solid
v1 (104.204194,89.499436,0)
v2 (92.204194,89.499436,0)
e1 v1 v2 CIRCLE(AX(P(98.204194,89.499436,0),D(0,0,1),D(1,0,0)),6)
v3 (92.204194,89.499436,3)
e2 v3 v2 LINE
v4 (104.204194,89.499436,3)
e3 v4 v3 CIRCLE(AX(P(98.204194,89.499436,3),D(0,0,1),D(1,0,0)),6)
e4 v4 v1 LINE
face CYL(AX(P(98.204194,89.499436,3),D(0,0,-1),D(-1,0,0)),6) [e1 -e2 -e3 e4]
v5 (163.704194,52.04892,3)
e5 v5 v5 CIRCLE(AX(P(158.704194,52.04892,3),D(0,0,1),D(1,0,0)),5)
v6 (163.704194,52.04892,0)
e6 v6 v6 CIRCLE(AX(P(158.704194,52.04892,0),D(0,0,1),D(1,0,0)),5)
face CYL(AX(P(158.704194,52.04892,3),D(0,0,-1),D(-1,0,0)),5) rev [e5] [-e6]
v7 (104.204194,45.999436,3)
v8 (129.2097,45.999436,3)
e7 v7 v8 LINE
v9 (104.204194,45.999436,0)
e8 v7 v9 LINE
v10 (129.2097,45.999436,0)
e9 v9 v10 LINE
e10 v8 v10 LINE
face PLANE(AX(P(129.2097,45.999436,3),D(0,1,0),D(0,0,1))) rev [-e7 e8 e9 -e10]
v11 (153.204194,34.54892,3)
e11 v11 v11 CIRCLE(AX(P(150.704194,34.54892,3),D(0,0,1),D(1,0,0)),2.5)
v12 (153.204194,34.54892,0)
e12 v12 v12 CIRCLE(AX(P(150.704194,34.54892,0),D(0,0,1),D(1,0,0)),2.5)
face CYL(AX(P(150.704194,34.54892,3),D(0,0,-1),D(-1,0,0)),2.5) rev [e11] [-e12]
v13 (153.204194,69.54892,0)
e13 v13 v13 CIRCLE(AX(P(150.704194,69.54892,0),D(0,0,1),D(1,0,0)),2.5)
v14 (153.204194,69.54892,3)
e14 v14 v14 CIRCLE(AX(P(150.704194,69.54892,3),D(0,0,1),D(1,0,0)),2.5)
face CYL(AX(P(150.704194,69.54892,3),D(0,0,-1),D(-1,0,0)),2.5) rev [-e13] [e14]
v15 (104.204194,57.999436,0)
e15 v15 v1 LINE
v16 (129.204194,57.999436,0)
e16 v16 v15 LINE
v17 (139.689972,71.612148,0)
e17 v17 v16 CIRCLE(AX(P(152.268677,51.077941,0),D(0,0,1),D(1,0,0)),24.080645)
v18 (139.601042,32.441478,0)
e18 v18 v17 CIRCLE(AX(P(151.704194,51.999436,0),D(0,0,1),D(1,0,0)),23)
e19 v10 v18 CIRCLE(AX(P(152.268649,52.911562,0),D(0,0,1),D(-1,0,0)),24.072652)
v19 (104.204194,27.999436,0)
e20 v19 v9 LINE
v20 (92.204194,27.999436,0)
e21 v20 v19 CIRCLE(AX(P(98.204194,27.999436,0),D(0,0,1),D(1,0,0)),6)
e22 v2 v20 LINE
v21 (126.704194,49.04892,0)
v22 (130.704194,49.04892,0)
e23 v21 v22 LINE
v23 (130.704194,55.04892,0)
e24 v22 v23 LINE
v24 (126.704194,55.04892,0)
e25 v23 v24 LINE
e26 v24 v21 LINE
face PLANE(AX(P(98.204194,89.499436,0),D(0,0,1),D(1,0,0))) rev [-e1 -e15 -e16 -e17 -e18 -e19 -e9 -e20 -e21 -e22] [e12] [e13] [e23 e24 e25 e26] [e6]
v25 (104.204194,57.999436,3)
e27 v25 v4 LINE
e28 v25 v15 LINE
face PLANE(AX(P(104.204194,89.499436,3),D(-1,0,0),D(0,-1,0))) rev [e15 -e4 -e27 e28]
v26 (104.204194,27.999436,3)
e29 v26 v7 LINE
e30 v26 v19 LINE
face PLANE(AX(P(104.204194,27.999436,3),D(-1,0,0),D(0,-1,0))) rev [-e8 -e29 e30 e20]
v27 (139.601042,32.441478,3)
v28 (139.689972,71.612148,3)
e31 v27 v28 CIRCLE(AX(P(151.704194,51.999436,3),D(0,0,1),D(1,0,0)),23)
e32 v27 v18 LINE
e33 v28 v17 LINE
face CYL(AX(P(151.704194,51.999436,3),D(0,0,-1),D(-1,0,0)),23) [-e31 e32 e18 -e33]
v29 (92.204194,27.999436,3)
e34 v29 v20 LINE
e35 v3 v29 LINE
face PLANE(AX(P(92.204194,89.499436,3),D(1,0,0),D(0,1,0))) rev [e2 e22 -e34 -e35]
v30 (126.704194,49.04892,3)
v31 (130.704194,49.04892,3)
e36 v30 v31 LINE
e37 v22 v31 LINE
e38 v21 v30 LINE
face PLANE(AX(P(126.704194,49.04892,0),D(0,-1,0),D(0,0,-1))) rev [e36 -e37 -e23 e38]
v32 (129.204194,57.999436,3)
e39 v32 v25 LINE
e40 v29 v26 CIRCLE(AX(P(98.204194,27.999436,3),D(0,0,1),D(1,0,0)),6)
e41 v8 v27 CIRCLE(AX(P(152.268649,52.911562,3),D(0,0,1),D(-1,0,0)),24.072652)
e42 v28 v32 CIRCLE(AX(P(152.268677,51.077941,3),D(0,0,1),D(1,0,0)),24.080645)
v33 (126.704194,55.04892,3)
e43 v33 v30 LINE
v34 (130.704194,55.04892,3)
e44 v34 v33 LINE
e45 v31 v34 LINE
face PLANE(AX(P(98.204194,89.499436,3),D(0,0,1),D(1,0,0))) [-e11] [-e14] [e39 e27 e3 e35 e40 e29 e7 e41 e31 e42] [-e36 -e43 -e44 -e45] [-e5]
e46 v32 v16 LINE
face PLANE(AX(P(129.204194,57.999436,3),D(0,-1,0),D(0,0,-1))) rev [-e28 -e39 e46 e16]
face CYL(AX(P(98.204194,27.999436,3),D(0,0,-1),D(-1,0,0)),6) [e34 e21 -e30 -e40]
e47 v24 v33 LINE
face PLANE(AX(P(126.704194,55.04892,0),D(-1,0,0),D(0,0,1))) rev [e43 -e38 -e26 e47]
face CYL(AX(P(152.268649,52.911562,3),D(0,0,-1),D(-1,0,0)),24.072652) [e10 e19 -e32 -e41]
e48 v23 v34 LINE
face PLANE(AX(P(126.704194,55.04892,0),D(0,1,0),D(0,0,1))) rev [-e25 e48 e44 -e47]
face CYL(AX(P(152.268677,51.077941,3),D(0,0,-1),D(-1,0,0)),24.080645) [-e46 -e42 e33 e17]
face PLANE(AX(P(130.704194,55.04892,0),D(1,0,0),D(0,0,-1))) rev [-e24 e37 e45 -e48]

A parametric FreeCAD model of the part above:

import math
import FreeCAD as App
import Part
import Sketcher

V = App.Vector


def add_polygon(sketch, points):
    """Adds a closed chain of lines whose ends are joined by coincident constraints."""
    first, n = sketch.GeometryCount, len(points)
    for a, b in zip(points, points[1:] + points[:1]):
        sketch.addGeometry(Part.LineSegment(App.Vector(*a, 0), App.Vector(*b, 0)), False)
    for i in range(n):
        sketch.addConstraint(Sketcher.Constraint("Coincident", first + i, 2, first + (i + 1) % n, 1))

doc = App.newDocument("Part")
body = doc.addObject("PartDesign::Body", "Body")

sketch1 = body.newObject("Sketcher::SketchObject", "Sketch")
sketch1.AttachmentSupport = (doc.getObject("XY_Plane"), [""])
sketch1.MapMode = "FlatFace"
sketch1.addGeometry(Part.LineSegment(V(104.2, 58, 0), V(104.2, 89.5, 0)), False)
sketch1.addGeometry(Part.ArcOfCircle(Part.Circle(V(98.2, 89.5, 0), V(0, 0, 1), 6), math.radians(0), math.radians(180)), False)
sketch1.addGeometry(Part.LineSegment(V(92.2, 89.5, 0), V(92.2, 28, 0)), False)
sketch1.addGeometry(Part.ArcOfCircle(Part.Circle(V(98.2, 28, 0), V(0, 0, 1), 6), math.radians(180), math.radians(360)), False)
sketch1.addGeometry(Part.LineSegment(V(104.2, 28, 0), V(104.2, 46, 0)), False)
sketch1.addGeometry(Part.LineSegment(V(104.2, 46, 0), V(129.2, 46, 0)), False)
sketch1.addGeometry(Part.ArcOfCircle(Part.Circle(V(152.3, 52.9, 0), V(0, 0, 1), 24.1), math.radians(-163), math.radians(-122)), False)
sketch1.addGeometry(Part.ArcOfCircle(Part.Circle(V(151.7, 52, 0), V(0, 0, 1), 23), math.radians(-122), math.radians(121)), False)
sketch1.addGeometry(Part.ArcOfCircle(Part.Circle(V(152.3, 51.1, 0), V(0, 0, 1), 24.1), math.radians(121), math.radians(163)), False)
sketch1.addGeometry(Part.LineSegment(V(129.2, 58, 0), V(104.2, 58, 0)), False)
sketch1.addGeometry(Part.Circle(V(150.7, 34.5, 0), V(0, 0, 1), 2.5), False)
sketch1.addGeometry(Part.Circle(V(158.7, 52, 0), V(0, 0, 1), 5), False)
sketch1.addGeometry(Part.Circle(V(150.7, 69.5, 0), V(0, 0, 1), 2.5), False)
sketch1.addConstraint(Sketcher.Constraint("Tangent", 0, 2, 1, 1))
sketch1.addConstraint(Sketcher.Constraint("Tangent", 1, 2, 2, 1))
sketch1.addConstraint(Sketcher.Constraint("Tangent", 2, 2, 3, 1))
sketch1.addConstraint(Sketcher.Constraint("Tangent", 3, 2, 4, 1))
sketch1.addConstraint(Sketcher.Constraint("Coincident", 4, 2, 5, 1))
sketch1.addConstraint(Sketcher.Constraint("Coincident", 5, 2, 6, 1))
sketch1.addConstraint(Sketcher.Constraint("Tangent", 6, 2, 7, 1))
sketch1.addConstraint(Sketcher.Constraint("Tangent", 7, 2, 8, 1))
sketch1.addConstraint(Sketcher.Constraint("Coincident", 8, 2, 9, 1))
sketch1.addConstraint(Sketcher.Constraint("Coincident", 9, 2, 0, 1))
sketch1.addConstraint(Sketcher.Constraint("Vertical", 0))
sketch1.addConstraint(Sketcher.Constraint("Vertical", 2))
sketch1.addConstraint(Sketcher.Constraint("Vertical", 4))
sketch1.addConstraint(Sketcher.Constraint("Horizontal", 5))
sketch1.addConstraint(Sketcher.Constraint("Horizontal", 9))
sketch1.addConstraint(Sketcher.Constraint("Equal", 1, 3))
sketch1.addConstraint(Sketcher.Constraint("Equal", 10, 12))
sketch1.addConstraint(Sketcher.Constraint("Vertical", 10, 3, 12, 3))
sketch1.addConstraint(Sketcher.Constraint("Diameter", 10, 5.0))
sketch1.addConstraint(Sketcher.Constraint("Diameter", 11, 10.0))
sketch1.addConstraint(Sketcher.Constraint("Radius", 1, 6.0))
sketch1.addConstraint(Sketcher.Constraint("Radius", 7, 23.0))
sketch1.addConstraint(Sketcher.Constraint("DistanceX", 9, 2, 9, 1, 25.0))
sketch1.addConstraint(Sketcher.Constraint("DistanceY", 4, 1, 4, 2, 18.0))
sketch1.addConstraint(Sketcher.Constraint("DistanceY", 0, 1, 0, 2, 31.5))
sketch1.addConstraint(Sketcher.Constraint("DistanceY", 2, 2, 2, 1, 61.5))
sketch1.addConstraint(Sketcher.Constraint("DistanceY", 3, 3, 7, 3, 24.0))
sketch1.addConstraint(Sketcher.Constraint("DistanceX", 10, 3, 7, 3, 1.0))
sketch1.addConstraint(Sketcher.Constraint("DistanceX", 7, 3, 11, 3, 7.0))
sketch1.addConstraint(Sketcher.Constraint("DistanceY", 10, 3, 12, 3, 35.0))
sketch1.addConstraint(Sketcher.Constraint("DistanceX", 3, 3, 7, 3, 53.5))
sketch1.addConstraint(Sketcher.Constraint("DistanceY", 10, 3, 11, 3, 17.5))
sketch1.addConstraint(Sketcher.Constraint("Radius", 6, 24.072652))
sketch1.addConstraint(Sketcher.Constraint("Radius", 8, 24.080645))
sketch1.addConstraint(Sketcher.Constraint("DistanceX", -1, 1, 5, 2, 129.2097))
sketch1.addConstraint(Sketcher.Constraint("DistanceX", 5, 1, 5, 2, 25.005507))
sketch1.addConstraint(Sketcher.Constraint("DistanceY", -1, 1, 6, 3, 52.911562))
sketch1.addConstraint(Sketcher.Constraint("DistanceY", -1, 1, 10, 3, 34.54892))
pad1 = body.newObject("PartDesign::Pad", "Pad")
pad1.Profile = sketch1
pad1.Length = 3

sketch2 = body.newObject("Sketcher::SketchObject", "Sketch001")
sketch2.AttachmentSupport = (doc.getObject("XY_Plane"), [""])
sketch2.MapMode = "FlatFace"
sketch2.AttachmentOffset = App.Placement(V(0, 0, 3), App.Rotation())
add_polygon(sketch2, [(126.7, 55), (126.7, 49), (130.7, 49), (130.7, 55)])
sketch2.addConstraint(Sketcher.Constraint("Vertical", 0))
sketch2.addConstraint(Sketcher.Constraint("Horizontal", 1))
sketch2.addConstraint(Sketcher.Constraint("Vertical", 2))
sketch2.addConstraint(Sketcher.Constraint("Horizontal", 3))
sketch2.addConstraint(Sketcher.Constraint("DistanceX", 1, 1, 1, 2, 4.0))
sketch2.addConstraint(Sketcher.Constraint("DistanceY", 0, 2, 0, 1, 6.0))
sketch2.addConstraint(Sketcher.Constraint("DistanceY", -1, 1, 0, 2, 49.04892))
sketch2.addConstraint(Sketcher.Constraint("DistanceX", -1, 1, 0, 2, 126.704194))
pocket1 = body.newObject("PartDesign::Pocket", "Pocket")
pocket1.Profile = sketch2
pocket1.Length = 3

doc.recompute()
